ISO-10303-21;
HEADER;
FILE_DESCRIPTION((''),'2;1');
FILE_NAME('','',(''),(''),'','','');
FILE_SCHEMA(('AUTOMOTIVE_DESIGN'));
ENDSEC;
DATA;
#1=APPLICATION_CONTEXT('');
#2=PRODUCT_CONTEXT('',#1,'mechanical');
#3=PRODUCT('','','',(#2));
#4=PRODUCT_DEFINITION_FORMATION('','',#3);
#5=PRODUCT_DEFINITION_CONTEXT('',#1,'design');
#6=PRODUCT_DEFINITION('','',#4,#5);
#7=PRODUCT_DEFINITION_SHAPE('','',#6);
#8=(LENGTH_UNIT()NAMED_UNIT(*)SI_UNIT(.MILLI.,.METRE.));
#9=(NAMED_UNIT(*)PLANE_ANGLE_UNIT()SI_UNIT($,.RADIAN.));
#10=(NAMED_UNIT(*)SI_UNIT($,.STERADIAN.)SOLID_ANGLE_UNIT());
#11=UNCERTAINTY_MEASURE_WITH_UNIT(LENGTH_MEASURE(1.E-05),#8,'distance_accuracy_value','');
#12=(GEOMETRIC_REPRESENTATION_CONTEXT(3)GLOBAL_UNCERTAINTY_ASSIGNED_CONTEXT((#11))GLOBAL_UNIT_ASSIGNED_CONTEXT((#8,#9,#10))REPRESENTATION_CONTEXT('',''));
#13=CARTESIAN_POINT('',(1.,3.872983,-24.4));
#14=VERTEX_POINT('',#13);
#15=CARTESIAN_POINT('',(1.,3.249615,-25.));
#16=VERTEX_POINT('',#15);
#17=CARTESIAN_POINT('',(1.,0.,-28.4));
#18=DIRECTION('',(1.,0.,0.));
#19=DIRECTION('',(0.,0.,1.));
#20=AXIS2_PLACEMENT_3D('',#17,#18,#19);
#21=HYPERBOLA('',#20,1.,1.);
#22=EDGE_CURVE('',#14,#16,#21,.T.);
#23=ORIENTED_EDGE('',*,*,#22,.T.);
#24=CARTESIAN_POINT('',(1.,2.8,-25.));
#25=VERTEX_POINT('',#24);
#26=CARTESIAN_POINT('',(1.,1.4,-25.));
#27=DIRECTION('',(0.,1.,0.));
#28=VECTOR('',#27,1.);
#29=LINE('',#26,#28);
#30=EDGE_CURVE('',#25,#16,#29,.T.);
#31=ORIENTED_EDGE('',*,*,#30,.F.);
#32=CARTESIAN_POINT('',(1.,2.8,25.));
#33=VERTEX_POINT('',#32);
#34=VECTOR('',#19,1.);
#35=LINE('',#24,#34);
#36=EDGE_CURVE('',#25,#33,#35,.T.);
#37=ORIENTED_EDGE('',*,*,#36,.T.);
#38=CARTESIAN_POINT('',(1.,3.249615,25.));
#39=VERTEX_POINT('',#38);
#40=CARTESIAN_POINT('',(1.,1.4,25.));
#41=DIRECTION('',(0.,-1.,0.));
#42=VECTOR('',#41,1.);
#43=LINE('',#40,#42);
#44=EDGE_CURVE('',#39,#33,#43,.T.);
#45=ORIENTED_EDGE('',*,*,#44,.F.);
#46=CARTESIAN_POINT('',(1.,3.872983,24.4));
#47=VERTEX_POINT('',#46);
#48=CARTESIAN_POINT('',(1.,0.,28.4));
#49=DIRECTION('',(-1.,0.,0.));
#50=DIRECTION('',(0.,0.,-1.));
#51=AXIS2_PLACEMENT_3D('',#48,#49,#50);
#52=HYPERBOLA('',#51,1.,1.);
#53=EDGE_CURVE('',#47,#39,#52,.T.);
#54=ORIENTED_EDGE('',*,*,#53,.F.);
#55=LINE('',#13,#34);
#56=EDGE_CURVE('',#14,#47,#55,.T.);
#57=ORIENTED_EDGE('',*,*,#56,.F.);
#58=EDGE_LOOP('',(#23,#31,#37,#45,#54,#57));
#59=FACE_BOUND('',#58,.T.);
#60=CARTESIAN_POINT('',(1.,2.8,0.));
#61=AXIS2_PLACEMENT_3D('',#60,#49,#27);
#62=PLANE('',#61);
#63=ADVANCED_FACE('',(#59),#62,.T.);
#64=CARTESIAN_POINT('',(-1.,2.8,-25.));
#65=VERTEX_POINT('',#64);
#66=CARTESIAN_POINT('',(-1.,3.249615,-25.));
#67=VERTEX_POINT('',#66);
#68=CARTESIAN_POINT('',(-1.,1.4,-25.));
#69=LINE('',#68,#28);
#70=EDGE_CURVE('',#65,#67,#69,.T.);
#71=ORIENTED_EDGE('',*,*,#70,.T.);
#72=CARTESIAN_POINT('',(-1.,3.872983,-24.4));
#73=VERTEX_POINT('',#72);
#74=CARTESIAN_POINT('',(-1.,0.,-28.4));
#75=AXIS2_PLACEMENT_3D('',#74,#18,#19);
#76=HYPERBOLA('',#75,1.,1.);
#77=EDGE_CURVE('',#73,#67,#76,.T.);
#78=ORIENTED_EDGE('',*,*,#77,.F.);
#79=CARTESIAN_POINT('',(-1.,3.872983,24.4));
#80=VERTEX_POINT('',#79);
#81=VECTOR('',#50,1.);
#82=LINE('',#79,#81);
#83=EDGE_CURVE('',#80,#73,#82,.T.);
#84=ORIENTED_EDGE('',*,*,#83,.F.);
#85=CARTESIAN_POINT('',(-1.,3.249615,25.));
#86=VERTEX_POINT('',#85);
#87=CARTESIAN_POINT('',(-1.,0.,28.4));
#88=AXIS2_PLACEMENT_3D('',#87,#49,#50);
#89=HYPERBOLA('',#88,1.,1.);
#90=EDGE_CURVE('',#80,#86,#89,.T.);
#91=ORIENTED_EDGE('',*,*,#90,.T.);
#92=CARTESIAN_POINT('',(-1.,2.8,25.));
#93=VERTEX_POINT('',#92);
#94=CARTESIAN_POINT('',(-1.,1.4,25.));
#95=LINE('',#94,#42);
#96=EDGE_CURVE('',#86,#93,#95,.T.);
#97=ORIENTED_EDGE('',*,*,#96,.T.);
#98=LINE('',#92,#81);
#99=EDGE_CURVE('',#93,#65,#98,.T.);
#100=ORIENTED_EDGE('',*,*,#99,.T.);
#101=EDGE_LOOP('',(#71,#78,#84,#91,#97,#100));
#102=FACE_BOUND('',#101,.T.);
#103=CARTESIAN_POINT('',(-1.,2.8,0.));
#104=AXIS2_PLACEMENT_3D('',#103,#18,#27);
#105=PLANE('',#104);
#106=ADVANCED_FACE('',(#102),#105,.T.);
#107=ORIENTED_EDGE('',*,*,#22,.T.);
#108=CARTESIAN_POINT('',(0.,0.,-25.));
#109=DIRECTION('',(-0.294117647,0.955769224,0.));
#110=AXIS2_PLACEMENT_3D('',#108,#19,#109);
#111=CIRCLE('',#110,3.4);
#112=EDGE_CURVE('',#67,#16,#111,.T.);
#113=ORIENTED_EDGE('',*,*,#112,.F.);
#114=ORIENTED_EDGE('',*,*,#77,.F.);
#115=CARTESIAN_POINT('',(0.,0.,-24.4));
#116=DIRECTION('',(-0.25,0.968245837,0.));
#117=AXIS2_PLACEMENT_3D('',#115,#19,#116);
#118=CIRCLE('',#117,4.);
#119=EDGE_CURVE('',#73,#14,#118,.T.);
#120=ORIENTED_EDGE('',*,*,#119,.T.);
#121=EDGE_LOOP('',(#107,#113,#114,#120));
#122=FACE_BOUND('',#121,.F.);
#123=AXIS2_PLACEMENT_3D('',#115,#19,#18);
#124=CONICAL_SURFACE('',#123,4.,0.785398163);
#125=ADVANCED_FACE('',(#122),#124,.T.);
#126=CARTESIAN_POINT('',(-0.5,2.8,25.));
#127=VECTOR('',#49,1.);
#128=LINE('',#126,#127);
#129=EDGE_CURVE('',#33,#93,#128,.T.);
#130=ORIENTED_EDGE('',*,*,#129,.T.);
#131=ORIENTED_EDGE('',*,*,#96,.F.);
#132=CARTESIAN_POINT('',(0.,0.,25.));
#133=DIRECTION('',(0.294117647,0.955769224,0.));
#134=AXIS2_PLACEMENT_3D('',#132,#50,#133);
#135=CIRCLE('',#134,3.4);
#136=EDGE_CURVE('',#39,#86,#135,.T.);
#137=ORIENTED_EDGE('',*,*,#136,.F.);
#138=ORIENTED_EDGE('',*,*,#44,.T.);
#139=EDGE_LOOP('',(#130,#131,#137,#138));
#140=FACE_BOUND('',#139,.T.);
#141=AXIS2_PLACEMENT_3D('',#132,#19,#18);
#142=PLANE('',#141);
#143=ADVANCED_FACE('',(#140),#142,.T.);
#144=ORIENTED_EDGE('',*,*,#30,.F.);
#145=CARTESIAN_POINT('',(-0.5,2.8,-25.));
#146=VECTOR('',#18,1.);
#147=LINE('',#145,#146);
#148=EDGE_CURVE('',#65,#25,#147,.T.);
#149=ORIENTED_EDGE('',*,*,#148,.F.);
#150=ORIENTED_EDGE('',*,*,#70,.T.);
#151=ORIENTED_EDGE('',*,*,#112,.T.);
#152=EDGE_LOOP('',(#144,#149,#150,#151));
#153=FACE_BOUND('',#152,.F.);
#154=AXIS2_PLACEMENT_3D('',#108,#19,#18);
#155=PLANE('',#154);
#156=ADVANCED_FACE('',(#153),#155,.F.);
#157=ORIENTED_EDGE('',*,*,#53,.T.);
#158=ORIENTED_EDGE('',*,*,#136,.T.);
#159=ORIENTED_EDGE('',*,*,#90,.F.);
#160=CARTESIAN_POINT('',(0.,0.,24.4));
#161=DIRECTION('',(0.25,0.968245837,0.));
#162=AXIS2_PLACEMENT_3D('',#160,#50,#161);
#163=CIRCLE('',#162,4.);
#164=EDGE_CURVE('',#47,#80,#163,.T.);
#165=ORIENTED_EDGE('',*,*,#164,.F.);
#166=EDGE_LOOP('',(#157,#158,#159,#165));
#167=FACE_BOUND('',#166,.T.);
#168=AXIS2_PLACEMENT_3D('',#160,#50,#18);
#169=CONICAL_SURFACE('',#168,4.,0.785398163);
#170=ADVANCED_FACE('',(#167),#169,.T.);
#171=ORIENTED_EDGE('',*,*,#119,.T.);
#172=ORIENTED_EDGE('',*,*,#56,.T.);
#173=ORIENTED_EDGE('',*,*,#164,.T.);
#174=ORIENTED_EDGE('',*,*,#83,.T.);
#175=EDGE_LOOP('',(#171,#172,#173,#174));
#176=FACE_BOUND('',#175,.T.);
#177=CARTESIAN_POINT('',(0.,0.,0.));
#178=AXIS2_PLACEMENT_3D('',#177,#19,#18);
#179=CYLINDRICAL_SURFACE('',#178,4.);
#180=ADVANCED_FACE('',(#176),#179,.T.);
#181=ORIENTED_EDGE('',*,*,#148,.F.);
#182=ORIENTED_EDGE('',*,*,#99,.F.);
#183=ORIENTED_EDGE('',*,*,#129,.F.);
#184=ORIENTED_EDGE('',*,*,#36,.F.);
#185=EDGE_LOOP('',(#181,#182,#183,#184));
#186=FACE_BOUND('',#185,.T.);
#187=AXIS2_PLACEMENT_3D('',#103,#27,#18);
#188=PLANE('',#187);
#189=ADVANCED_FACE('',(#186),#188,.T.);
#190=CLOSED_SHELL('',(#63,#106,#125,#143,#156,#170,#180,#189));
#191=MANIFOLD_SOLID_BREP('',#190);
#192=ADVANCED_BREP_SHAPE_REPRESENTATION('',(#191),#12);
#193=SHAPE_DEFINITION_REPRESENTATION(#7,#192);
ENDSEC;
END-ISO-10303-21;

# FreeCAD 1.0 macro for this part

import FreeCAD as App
import Part
import Sketcher
from FreeCAD import Vector
Q = App.Units.Quantity


def edges_at(feature, points):
    """Names of the edges that pass closest to the given points."""
    edges = feature.Shape.Edges
    near = lambda p: min(range(len(edges)), key=lambda i: edges[i].distToShape(Part.Vertex(*p))[0])
    return sorted({f"Edge{near(p) + 1}" for p in points})


def add_polygon(sketch, points):
    """Adds a closed chain of lines whose ends are joined by coincident constraints."""
    first, n = sketch.GeometryCount, len(points)
    for a, b in zip(points, points[1:] + points[:1]):
        sketch.addGeometry(Part.LineSegment(App.Vector(*a, 0), App.Vector(*b, 0)), False)
    for i in range(n):
        sketch.addConstraint(Sketcher.Constraint("Coincident", first + i, 2, first + (i + 1) % n, 1))

doc = App.newDocument("Part")
body = doc.addObject("PartDesign::Body", "Body")

# Sketch on XY plane
sketch1 = body.newObject("Sketcher::SketchObject", "Sketch")
sketch1.AttachmentSupport = (doc.getObject("XY_Plane"), [""])
sketch1.MapMode = "FlatFace"
sketch1.addGeometry(Part.Circle(Vector(0, 0, 0), Vector(0, 0, 1), 4), False)
sketch1.addConstraint([
    Sketcher.Constraint("Coincident", 0, 3, -1, 1),
    Sketcher.Constraint("Diameter", 0, Q("8 mm")),
])
pad1 = body.newObject("PartDesign::Pad", "Pad")
pad1.Profile = sketch1
pad1.Length = 50
pad1.Midplane = True
doc.recompute()

chamfer = body.newObject("PartDesign::Chamfer", "Chamfer")
chamfer.Base = (pad1, edges_at(pad1, [(-4, 0, -25), (-4, 0, 25)]))
chamfer.Size = 0.6

# Sketch on XY plane
sketch2 = body.newObject("Sketcher::SketchObject", "Sketch001")
sketch2.AttachmentSupport = (doc.getObject("XY_Plane"), [""])
sketch2.MapMode = "FlatFace"
add_polygon(sketch2, [(-1, 4), (-1, 2.8), (1, 2.8), (1, 4)])  # lines 0-3
sketch2.addConstraint([
    Sketcher.Constraint("Vertical", 0),
    Sketcher.Constraint("Horizontal", 1),
    Sketcher.Constraint("Vertical", 2),
    Sketcher.Constraint("Horizontal", 3),
    Sketcher.Constraint("DistanceX", 1, 1, 1, 2, Q("2 mm")),
    Sketcher.Constraint("DistanceY", 0, 2, 0, 1, Q("1.2 mm")),
    Sketcher.Constraint("DistanceX", 0, 2, -1, 1, Q("1 mm")),
    Sketcher.Constraint("DistanceY", -1, 1, 2, 2, Q("4 mm")),
])
pocket1 = body.newObject("PartDesign::Pocket", "Pocket")
pocket1.Profile = sketch2
pocket1.Type = "ThroughAll"
pocket1.Midplane = True

doc.recompute()
